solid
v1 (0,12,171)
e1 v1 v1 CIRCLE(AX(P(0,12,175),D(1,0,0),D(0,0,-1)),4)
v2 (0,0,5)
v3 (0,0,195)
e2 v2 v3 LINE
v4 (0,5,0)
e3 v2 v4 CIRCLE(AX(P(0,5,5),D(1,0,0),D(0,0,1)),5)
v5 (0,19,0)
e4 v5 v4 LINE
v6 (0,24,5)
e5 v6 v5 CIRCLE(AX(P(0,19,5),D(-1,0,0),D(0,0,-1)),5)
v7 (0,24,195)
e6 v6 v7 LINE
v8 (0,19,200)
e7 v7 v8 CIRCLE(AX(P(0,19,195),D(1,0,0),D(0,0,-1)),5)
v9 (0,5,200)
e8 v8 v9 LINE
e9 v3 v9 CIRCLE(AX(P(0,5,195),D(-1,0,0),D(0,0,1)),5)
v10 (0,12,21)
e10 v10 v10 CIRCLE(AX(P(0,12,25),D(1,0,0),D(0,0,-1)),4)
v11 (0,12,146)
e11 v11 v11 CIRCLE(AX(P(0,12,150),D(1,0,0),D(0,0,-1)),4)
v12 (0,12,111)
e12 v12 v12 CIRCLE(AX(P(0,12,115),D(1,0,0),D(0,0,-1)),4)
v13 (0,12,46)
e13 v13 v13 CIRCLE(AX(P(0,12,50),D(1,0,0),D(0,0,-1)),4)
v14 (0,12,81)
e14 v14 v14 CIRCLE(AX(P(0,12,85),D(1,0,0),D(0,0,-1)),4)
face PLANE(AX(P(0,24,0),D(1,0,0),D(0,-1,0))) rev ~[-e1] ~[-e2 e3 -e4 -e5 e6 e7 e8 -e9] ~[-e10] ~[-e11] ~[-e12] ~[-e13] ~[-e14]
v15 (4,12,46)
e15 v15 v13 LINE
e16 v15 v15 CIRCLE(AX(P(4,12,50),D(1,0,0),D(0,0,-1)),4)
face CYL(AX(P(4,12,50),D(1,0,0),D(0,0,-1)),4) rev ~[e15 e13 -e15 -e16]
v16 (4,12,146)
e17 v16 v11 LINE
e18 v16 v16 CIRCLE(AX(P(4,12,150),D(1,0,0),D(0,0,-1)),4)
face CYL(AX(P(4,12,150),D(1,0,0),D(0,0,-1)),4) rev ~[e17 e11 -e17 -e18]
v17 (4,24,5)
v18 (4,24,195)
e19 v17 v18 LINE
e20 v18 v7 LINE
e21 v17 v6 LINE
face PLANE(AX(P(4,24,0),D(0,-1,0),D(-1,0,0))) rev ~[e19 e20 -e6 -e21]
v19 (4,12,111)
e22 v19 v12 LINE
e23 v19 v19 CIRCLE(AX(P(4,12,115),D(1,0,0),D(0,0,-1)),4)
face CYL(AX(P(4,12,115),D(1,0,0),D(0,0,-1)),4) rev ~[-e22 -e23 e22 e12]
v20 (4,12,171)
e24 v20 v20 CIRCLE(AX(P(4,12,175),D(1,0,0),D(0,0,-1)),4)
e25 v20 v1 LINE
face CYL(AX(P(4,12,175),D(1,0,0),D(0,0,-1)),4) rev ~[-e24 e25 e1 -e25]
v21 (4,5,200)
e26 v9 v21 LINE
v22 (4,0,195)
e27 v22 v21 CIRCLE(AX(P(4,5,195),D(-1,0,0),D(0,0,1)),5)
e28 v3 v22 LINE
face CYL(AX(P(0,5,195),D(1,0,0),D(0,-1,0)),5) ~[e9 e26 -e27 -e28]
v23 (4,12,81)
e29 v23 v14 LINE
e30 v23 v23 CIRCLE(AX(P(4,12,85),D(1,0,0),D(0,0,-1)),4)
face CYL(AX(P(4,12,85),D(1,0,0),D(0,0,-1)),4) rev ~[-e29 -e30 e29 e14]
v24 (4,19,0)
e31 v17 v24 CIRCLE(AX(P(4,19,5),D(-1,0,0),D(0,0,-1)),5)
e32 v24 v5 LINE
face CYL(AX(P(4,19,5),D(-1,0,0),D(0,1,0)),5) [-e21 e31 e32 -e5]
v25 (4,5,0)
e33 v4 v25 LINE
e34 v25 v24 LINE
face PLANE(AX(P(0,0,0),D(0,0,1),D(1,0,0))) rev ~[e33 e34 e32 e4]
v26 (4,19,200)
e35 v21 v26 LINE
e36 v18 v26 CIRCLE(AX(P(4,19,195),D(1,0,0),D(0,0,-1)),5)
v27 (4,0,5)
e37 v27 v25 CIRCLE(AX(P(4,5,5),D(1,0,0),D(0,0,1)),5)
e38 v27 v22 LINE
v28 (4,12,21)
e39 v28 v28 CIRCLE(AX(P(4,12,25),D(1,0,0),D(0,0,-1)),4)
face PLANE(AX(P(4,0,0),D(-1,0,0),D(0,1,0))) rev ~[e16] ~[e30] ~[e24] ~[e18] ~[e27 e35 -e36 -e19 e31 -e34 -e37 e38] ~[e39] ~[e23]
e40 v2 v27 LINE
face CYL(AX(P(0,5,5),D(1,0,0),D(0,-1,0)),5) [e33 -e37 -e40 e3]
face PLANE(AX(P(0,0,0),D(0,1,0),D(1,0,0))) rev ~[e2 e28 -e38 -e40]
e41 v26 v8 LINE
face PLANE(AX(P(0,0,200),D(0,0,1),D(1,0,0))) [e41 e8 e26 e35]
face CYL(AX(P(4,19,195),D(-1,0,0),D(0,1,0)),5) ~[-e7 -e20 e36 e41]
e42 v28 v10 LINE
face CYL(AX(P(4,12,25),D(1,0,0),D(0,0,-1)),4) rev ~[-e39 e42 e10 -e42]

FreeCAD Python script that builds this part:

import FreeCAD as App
import Part
import Sketcher
from FreeCAD import Vector
Q = App.Units.Quantity


def edges_at(feature, points):
    """Names of the edges that pass closest to the given points."""
    edges = feature.Shape.Edges
    near = lambda p: min(range(len(edges)), key=lambda i: edges[i].distToShape(Part.Vertex(*p))[0])
    return sorted({f"Edge{near(p) + 1}" for p in points})


def add_polygon(sketch, points):
    """Adds a closed chain of lines whose ends are joined by coincident constraints."""
    first, n = sketch.GeometryCount, len(points)
    for a, b in zip(points, points[1:] + points[:1]):
        sketch.addGeometry(Part.LineSegment(App.Vector(*a, 0), App.Vector(*b, 0)), False)
    for i in range(n):
        sketch.addConstraint(Sketcher.Constraint("Coincident", first + i, 2, first + (i + 1) % n, 1))

doc = App.newDocument("Part")
body = doc.addObject("PartDesign::Body", "Body")

sketch1 = body.newObject("Sketcher::SketchObject", "Sketch")
sketch1.AttachmentSupport = (doc.getObject("XY_Plane"), [""])
sketch1.MapMode = "FlatFace"
add_polygon(sketch1, [(0, 24), (0, 0), (4, 0), (4, 24)])
sketch1.addConstraint([
    Sketcher.Constraint("Vertical", 0),
    Sketcher.Constraint("Horizontal", 1),
    Sketcher.Constraint("Vertical", 2),
    Sketcher.Constraint("Horizontal", 3),
    Sketcher.Constraint("Coincident", 0, 2, -1, 1),
    Sketcher.Constraint("DistanceX", 1, 1, 1, 2, Q("4 mm")),
    Sketcher.Constraint("DistanceY", 0, 2, 0, 1, Q("24 mm")),
])
pad1 = body.newObject("PartDesign::Pad", "Pad")
pad1.Profile = sketch1
pad1.Length = 200
doc.recompute()

fillet = body.newObject("PartDesign::Fillet", "Fillet")
fillet.Base = (pad1, edges_at(pad1, [
    (2, 24, 200),
    (2, 0, 200),
    (2, 24, 0),
    (2, 0, 0),
]))
fillet.Radius = 5

sketch2 = body.newObject("Sketcher::SketchObject", "Sketch001")
sketch2.AttachmentSupport = (doc.getObject("YZ_Plane"), [""])
sketch2.MapMode = "FlatFace"
sketch2.AttachmentOffset = App.Placement(Vector(0, 0, 4), App.Rotation())
sketch2.addGeometry([
    Part.Circle(Vector(12, 50, 0), Vector(0, 0, 1), 4),
    Part.Circle(Vector(12, 150, 0), Vector(0, 0, 1), 4),
    Part.Circle(Vector(12, 175, 0), Vector(0, 0, 1), 4),
    Part.Circle(Vector(12, 25, 0), Vector(0, 0, 1), 4),
    Part.Circle(Vector(12, 115, 0), Vector(0, 0, 1), 4),
    Part.Circle(Vector(12, 85, 0), Vector(0, 0, 1), 4),
], False)
sketch2.addConstraint([
    Sketcher.Constraint("Equal", 0, 1),
    Sketcher.Constraint("Equal", 1, 2),
    Sketcher.Constraint("Equal", 2, 3),
    Sketcher.Constraint("Equal", 3, 4),
    Sketcher.Constraint("Equal", 4, 5),
    Sketcher.Constraint("Vertical", 0, 3, 1, 3),
    Sketcher.Constraint("Vertical", 1, 3, 2, 3),
    Sketcher.Constraint("Vertical", 2, 3, 3, 3),
    Sketcher.Constraint("Vertical", 3, 3, 4, 3),
    Sketcher.Constraint("Vertical", 4, 3, 5, 3),
    Sketcher.Constraint("Diameter", 0, Q("8 mm")),
    Sketcher.Constraint("DistanceX", -1, 1, 0, 3, Q("12 mm")),
    Sketcher.Constraint("DistanceY", -1, 1, 0, 3, Q("50 mm")),
    Sketcher.Constraint("DistanceY", -1, 1, 3, 3, Q("25 mm")),
    Sketcher.Constraint("DistanceY", -1, 1, 5, 3, Q("85 mm")),
    Sketcher.Constraint("DistanceY", 1, 3, 2, 3, Q("25 mm")),
    Sketcher.Constraint("DistanceY", -1, 1, 1, 3, Q("150 mm")),
    Sketcher.Constraint("DistanceY", -1, 1, 4, 3, Q("115 mm")),
])
pocket1 = body.newObject("PartDesign::Pocket", "Pocket")
pocket1.Profile = sketch2
pocket1.Length = 4

doc.recompute()
